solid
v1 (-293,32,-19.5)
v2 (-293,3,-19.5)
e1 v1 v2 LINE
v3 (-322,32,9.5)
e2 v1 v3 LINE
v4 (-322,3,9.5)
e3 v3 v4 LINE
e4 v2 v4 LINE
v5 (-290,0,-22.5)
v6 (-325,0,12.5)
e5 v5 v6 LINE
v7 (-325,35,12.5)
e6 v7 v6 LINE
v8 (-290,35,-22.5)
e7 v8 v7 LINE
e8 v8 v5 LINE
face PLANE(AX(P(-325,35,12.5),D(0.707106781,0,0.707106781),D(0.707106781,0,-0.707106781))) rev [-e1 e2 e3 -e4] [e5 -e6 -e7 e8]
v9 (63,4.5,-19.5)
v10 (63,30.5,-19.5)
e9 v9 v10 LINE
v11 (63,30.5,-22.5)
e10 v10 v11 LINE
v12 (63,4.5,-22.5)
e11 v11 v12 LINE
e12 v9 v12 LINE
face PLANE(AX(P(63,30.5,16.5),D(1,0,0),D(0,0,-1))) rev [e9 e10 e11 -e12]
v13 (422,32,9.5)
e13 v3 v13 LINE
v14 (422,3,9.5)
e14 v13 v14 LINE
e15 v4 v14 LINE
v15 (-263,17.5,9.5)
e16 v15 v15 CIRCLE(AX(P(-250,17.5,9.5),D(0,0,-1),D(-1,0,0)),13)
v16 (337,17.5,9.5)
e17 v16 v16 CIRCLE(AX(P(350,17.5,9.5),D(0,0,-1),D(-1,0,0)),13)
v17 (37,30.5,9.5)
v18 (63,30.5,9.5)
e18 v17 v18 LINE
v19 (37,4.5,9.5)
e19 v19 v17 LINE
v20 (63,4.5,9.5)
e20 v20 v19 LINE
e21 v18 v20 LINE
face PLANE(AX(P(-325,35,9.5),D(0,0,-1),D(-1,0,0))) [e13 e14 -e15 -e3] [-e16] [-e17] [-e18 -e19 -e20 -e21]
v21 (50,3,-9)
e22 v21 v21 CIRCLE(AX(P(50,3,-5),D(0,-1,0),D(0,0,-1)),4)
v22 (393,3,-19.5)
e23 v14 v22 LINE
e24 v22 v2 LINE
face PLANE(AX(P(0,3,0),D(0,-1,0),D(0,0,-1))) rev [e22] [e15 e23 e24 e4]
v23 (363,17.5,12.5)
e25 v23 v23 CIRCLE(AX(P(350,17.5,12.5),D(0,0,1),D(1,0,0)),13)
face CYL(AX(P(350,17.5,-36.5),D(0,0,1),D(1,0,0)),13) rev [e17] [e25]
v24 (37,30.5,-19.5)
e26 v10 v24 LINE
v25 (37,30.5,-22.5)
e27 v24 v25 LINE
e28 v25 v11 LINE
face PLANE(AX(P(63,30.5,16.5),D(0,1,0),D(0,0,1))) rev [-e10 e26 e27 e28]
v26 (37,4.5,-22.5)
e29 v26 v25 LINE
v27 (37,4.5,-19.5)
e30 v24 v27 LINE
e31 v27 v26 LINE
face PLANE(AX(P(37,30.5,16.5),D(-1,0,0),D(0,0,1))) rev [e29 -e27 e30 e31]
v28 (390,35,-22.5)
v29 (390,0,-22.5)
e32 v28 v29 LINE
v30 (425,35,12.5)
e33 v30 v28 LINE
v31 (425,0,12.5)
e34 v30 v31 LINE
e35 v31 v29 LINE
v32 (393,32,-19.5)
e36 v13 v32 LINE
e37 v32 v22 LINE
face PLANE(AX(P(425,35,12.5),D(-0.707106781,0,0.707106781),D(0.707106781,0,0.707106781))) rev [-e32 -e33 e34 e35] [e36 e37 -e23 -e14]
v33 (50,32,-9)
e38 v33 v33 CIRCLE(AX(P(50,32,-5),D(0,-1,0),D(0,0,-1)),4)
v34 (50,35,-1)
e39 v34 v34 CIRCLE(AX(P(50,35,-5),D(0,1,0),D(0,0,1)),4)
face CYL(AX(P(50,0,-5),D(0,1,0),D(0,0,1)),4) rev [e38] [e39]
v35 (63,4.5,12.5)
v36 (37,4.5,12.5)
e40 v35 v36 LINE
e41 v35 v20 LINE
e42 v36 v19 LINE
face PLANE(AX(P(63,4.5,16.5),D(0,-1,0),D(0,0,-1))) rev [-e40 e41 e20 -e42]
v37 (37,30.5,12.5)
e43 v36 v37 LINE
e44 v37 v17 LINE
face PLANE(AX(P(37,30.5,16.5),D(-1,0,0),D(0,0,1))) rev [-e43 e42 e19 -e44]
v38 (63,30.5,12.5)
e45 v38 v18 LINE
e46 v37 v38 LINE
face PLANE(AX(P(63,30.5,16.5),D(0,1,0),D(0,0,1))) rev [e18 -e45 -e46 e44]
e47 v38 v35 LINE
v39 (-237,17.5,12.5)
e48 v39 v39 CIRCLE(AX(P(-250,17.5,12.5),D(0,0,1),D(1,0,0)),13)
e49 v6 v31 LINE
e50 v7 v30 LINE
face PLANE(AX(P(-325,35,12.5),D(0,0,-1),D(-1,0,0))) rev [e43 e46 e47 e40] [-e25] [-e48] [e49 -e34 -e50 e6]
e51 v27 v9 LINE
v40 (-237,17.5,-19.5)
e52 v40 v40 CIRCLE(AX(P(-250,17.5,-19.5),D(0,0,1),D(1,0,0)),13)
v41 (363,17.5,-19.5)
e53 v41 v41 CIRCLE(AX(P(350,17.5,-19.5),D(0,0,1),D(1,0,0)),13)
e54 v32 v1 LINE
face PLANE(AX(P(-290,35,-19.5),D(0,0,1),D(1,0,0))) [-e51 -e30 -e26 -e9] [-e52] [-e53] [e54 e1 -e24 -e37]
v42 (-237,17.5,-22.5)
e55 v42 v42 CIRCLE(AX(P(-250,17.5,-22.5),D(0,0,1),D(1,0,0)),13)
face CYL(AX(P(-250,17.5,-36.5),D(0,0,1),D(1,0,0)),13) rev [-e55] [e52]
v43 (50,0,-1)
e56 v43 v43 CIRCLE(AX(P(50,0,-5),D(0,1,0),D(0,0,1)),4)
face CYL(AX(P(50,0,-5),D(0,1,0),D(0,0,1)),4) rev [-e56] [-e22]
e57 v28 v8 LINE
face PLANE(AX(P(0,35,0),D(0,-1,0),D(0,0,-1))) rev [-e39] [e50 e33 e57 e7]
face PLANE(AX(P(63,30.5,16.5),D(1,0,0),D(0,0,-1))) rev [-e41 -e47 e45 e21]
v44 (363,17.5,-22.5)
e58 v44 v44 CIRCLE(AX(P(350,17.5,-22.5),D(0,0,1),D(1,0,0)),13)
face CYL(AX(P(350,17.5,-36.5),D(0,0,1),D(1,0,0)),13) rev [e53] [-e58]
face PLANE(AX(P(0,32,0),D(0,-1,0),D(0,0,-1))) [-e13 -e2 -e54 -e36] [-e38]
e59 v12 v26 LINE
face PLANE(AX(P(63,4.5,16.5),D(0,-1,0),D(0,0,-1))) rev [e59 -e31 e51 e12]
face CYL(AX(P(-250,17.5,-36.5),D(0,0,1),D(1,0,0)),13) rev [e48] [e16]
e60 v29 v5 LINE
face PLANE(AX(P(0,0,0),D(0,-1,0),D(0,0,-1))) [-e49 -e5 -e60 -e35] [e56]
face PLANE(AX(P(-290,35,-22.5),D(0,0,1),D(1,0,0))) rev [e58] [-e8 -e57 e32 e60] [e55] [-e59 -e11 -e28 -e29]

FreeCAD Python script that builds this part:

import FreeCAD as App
import Part
import Sketcher
from FreeCAD import Vector
Q = App.Units.Quantity


def faces_at(feature, points):
    """Names of the faces that lie closest to the given points."""
    faces = feature.Shape.Faces
    near = lambda p: min(range(len(faces)), key=lambda i: faces[i].distToShape(Part.Vertex(*p))[0])
    return sorted({f"Face{near(p) + 1}" for p in points})

doc = App.newDocument("Part")
params = doc.addObject("Spreadsheet::Sheet", "Params")
for row, (alias, value) in enumerate([
    ("sketch1_width", "750 mm"),
    ("sketch1_width2", "680 mm"),
    ("pad1_length", "35 mm"),
    ("thickness_wall", "3 mm"),
    ("sketch2_diameter", "26 mm"),
    ("pocket1_length", "49 mm"),
    ("sketch3_width", "26 mm"),
    ("pocket2_length", "39 mm"),
    ("sketch4_diameter", "8 mm"),
    ("pocket3_length", "35 mm"),
], start=1):
    params.set(f"A{row}", alias)
    params.set(f"B{row}", "=" + value)
    params.setAlias(f"B{row}", alias)

body = doc.addObject("PartDesign::Body", "Body")

# Sketch on XZ plane
sketch1 = doc.addObject("Sketcher::SketchObject", "Sketch")
body.addObject(sketch1)
sketch1.AttachmentSupport = (doc.XZ_Plane, [""])
sketch1.MapMode = "FlatFace"
sketch1.addGeometry([
    Part.LineSegment(Vector(-290, -22, 0), Vector(-325, 12, 0)),
    Part.LineSegment(Vector(-325, 12, 0), Vector(425, 12, 0)),
    Part.LineSegment(Vector(425, 12, 0), Vector(390, -22, 0)),
    Part.LineSegment(Vector(390, -22, 0), Vector(-290, -22, 0)),
], False)
sketch1.addConstraint([
    Sketcher.Constraint("Coincident", 0, 2, 1, 1),
    Sketcher.Constraint("Coincident", 1, 2, 2, 1),
    Sketcher.Constraint("Coincident", 2, 2, 3, 1),
    Sketcher.Constraint("Coincident", 3, 2, 0, 1),
    Sketcher.Constraint("Horizontal", 1),
    Sketcher.Constraint("Horizontal", 3),
    Sketcher.Constraint("Perpendicular", 0, 2),
    Sketcher.Constraint("Equal", 0, 2),
    Sketcher.Constraint("DistanceX", 1, 1, 1, 2, Q("750 mm")),
    Sketcher.Constraint("DistanceX", 3, 2, 3, 1, Q("680 mm")),
    Sketcher.Constraint("DistanceX", 0, 2, -1, 1, Q("325 mm")),
    Sketcher.Constraint("DistanceY", -1, 1, 0, 2, Q("12.5 mm")),
])
sketch1.setExpression("Constraints[8]", "Params.sketch1_width")
sketch1.setExpression("Constraints[9]", "Params.sketch1_width2")
pad1 = doc.addObject("PartDesign::Pad", "Pad")
body.addObject(pad1)
pad1.Profile = sketch1
pad1.setExpression("Length", "Params.pad1_length")
pad1.Reversed = True
doc.recompute()

thickness = doc.addObject("PartDesign::Thickness", "Thickness")
body.addObject(thickness)
thickness.Base = (pad1, faces_at(pad1, [(-307.5, 17.5, -5), (407.5, 17.5, -5)]))
thickness.setExpression("Value", "Params.thickness_wall")
thickness.Reversed = True
thickness.Join = "Intersection"

# Sketch on XY plane
sketch2 = doc.addObject("Sketcher::SketchObject", "Sketch001")
body.addObject(sketch2)
sketch2.AttachmentSupport = (doc.XY_Plane, [""])
sketch2.MapMode = "FlatFace"
sketch2.AttachmentOffset = App.Placement(Vector(0, 0, 12.5), App.Rotation())
sketch2.addGeometry([
    Part.Circle(Vector(-250, 18, 0), Vector(0, 0, 1), 13),
    Part.Circle(Vector(350, 18, 0), Vector(0, 0, 1), 13),
], False)
sketch2.addConstraint([
    Sketcher.Constraint("Equal", 0, 1),
    Sketcher.Constraint("Horizontal", 0, 3, 1, 3),
    Sketcher.Constraint("Diameter", 0, Q("26 mm")),
    Sketcher.Constraint("DistanceX", 0, 3, -1, 1, Q("250 mm")),
    Sketcher.Constraint("DistanceX", -1, 1, 1, 3, Q("350 mm")),
    Sketcher.Constraint("DistanceY", -1, 1, 0, 3, Q("17.5 mm")),
])
sketch2.setExpression("Constraints[2]", "Params.sketch2_diameter")
pocket1 = doc.addObject("PartDesign::Pocket", "Pocket")
body.addObject(pocket1)
pocket1.Profile = sketch2
pocket1.setExpression("Length", "Params.pocket1_length")

# Sketch on XY plane
sketch3 = doc.addObject("Sketcher::SketchObject", "Sketch002")
body.addObject(sketch3)
sketch3.AttachmentSupport = (doc.XY_Plane, [""])
sketch3.MapMode = "FlatFace"
sketch3.AttachmentOffset = App.Placement(Vector(0, 0, -22.5), App.Rotation())
sketch3.addGeometry([
    Part.LineSegment(Vector(63, 30, 0), Vector(63, 4, 0)),
    Part.LineSegment(Vector(63, 4, 0), Vector(37, 4, 0)),
    Part.LineSegment(Vector(37, 4, 0), Vector(37, 30, 0)),
    Part.LineSegment(Vector(37, 30, 0), Vector(63, 30, 0)),
], False)
sketch3.addConstraint([
    Sketcher.Constraint("Coincident", 0, 2, 1, 1),
    Sketcher.Constraint("Coincident", 1, 2, 2, 1),
    Sketcher.Constraint("Coincident", 2, 2, 3, 1),
    Sketcher.Constraint("Coincident", 3, 2, 0, 1),
    Sketcher.Constraint("Vertical", 0),
    Sketcher.Constraint("Horizontal", 1),
    Sketcher.Constraint("Vertical", 2),
    Sketcher.Constraint("Horizontal", 3),
    Sketcher.Constraint("Equal", 3, 0),
    Sketcher.Constraint("DistanceX", 1, 2, 1, 1, Q("26 mm")),
    Sketcher.Constraint("DistanceX", -1, 1, 0, 2, Q("63 mm")),
    Sketcher.Constraint("DistanceY", -1, 1, 0, 2, Q("4.5 mm")),
])
sketch3.setExpression("Constraints[9]", "Params.sketch3_width")
pocket2 = doc.addObject("PartDesign::Pocket", "Pocket001")
body.addObject(pocket2)
pocket2.Profile = sketch3
pocket2.setExpression("Length", "Params.pocket2_length")
pocket2.Reversed = True

# Sketch on XZ plane
sketch4 = doc.addObject("Sketcher::SketchObject", "Sketch003")
body.addObject(sketch4)
sketch4.AttachmentSupport = (doc.XZ_Plane, [""])
sketch4.MapMode = "FlatFace"
sketch4.AttachmentOffset = App.Placement(Vector(0, 0, -35), App.Rotation())
sketch4.addGeometry(Part.Circle(Vector(50, -5, 0), Vector(0, 0, 1), 4), False)
sketch4.addConstraint([
    Sketcher.Constraint("Diameter", 0, Q("8 mm")),
    Sketcher.Constraint("DistanceX", -1, 1, 0, 3, Q("50 mm")),
    Sketcher.Constraint("DistanceY", 0, 3, -1, 1, Q("5 mm")),
])
sketch4.setExpression("Constraints[0]", "Params.sketch4_diameter")
pocket3 = doc.addObject("PartDesign::Pocket", "Pocket002")
body.addObject(pocket3)
pocket3.Profile = sketch4
pocket3.setExpression("Length", "Params.pocket3_length")
pocket3.Reversed = True

doc.recompute()
